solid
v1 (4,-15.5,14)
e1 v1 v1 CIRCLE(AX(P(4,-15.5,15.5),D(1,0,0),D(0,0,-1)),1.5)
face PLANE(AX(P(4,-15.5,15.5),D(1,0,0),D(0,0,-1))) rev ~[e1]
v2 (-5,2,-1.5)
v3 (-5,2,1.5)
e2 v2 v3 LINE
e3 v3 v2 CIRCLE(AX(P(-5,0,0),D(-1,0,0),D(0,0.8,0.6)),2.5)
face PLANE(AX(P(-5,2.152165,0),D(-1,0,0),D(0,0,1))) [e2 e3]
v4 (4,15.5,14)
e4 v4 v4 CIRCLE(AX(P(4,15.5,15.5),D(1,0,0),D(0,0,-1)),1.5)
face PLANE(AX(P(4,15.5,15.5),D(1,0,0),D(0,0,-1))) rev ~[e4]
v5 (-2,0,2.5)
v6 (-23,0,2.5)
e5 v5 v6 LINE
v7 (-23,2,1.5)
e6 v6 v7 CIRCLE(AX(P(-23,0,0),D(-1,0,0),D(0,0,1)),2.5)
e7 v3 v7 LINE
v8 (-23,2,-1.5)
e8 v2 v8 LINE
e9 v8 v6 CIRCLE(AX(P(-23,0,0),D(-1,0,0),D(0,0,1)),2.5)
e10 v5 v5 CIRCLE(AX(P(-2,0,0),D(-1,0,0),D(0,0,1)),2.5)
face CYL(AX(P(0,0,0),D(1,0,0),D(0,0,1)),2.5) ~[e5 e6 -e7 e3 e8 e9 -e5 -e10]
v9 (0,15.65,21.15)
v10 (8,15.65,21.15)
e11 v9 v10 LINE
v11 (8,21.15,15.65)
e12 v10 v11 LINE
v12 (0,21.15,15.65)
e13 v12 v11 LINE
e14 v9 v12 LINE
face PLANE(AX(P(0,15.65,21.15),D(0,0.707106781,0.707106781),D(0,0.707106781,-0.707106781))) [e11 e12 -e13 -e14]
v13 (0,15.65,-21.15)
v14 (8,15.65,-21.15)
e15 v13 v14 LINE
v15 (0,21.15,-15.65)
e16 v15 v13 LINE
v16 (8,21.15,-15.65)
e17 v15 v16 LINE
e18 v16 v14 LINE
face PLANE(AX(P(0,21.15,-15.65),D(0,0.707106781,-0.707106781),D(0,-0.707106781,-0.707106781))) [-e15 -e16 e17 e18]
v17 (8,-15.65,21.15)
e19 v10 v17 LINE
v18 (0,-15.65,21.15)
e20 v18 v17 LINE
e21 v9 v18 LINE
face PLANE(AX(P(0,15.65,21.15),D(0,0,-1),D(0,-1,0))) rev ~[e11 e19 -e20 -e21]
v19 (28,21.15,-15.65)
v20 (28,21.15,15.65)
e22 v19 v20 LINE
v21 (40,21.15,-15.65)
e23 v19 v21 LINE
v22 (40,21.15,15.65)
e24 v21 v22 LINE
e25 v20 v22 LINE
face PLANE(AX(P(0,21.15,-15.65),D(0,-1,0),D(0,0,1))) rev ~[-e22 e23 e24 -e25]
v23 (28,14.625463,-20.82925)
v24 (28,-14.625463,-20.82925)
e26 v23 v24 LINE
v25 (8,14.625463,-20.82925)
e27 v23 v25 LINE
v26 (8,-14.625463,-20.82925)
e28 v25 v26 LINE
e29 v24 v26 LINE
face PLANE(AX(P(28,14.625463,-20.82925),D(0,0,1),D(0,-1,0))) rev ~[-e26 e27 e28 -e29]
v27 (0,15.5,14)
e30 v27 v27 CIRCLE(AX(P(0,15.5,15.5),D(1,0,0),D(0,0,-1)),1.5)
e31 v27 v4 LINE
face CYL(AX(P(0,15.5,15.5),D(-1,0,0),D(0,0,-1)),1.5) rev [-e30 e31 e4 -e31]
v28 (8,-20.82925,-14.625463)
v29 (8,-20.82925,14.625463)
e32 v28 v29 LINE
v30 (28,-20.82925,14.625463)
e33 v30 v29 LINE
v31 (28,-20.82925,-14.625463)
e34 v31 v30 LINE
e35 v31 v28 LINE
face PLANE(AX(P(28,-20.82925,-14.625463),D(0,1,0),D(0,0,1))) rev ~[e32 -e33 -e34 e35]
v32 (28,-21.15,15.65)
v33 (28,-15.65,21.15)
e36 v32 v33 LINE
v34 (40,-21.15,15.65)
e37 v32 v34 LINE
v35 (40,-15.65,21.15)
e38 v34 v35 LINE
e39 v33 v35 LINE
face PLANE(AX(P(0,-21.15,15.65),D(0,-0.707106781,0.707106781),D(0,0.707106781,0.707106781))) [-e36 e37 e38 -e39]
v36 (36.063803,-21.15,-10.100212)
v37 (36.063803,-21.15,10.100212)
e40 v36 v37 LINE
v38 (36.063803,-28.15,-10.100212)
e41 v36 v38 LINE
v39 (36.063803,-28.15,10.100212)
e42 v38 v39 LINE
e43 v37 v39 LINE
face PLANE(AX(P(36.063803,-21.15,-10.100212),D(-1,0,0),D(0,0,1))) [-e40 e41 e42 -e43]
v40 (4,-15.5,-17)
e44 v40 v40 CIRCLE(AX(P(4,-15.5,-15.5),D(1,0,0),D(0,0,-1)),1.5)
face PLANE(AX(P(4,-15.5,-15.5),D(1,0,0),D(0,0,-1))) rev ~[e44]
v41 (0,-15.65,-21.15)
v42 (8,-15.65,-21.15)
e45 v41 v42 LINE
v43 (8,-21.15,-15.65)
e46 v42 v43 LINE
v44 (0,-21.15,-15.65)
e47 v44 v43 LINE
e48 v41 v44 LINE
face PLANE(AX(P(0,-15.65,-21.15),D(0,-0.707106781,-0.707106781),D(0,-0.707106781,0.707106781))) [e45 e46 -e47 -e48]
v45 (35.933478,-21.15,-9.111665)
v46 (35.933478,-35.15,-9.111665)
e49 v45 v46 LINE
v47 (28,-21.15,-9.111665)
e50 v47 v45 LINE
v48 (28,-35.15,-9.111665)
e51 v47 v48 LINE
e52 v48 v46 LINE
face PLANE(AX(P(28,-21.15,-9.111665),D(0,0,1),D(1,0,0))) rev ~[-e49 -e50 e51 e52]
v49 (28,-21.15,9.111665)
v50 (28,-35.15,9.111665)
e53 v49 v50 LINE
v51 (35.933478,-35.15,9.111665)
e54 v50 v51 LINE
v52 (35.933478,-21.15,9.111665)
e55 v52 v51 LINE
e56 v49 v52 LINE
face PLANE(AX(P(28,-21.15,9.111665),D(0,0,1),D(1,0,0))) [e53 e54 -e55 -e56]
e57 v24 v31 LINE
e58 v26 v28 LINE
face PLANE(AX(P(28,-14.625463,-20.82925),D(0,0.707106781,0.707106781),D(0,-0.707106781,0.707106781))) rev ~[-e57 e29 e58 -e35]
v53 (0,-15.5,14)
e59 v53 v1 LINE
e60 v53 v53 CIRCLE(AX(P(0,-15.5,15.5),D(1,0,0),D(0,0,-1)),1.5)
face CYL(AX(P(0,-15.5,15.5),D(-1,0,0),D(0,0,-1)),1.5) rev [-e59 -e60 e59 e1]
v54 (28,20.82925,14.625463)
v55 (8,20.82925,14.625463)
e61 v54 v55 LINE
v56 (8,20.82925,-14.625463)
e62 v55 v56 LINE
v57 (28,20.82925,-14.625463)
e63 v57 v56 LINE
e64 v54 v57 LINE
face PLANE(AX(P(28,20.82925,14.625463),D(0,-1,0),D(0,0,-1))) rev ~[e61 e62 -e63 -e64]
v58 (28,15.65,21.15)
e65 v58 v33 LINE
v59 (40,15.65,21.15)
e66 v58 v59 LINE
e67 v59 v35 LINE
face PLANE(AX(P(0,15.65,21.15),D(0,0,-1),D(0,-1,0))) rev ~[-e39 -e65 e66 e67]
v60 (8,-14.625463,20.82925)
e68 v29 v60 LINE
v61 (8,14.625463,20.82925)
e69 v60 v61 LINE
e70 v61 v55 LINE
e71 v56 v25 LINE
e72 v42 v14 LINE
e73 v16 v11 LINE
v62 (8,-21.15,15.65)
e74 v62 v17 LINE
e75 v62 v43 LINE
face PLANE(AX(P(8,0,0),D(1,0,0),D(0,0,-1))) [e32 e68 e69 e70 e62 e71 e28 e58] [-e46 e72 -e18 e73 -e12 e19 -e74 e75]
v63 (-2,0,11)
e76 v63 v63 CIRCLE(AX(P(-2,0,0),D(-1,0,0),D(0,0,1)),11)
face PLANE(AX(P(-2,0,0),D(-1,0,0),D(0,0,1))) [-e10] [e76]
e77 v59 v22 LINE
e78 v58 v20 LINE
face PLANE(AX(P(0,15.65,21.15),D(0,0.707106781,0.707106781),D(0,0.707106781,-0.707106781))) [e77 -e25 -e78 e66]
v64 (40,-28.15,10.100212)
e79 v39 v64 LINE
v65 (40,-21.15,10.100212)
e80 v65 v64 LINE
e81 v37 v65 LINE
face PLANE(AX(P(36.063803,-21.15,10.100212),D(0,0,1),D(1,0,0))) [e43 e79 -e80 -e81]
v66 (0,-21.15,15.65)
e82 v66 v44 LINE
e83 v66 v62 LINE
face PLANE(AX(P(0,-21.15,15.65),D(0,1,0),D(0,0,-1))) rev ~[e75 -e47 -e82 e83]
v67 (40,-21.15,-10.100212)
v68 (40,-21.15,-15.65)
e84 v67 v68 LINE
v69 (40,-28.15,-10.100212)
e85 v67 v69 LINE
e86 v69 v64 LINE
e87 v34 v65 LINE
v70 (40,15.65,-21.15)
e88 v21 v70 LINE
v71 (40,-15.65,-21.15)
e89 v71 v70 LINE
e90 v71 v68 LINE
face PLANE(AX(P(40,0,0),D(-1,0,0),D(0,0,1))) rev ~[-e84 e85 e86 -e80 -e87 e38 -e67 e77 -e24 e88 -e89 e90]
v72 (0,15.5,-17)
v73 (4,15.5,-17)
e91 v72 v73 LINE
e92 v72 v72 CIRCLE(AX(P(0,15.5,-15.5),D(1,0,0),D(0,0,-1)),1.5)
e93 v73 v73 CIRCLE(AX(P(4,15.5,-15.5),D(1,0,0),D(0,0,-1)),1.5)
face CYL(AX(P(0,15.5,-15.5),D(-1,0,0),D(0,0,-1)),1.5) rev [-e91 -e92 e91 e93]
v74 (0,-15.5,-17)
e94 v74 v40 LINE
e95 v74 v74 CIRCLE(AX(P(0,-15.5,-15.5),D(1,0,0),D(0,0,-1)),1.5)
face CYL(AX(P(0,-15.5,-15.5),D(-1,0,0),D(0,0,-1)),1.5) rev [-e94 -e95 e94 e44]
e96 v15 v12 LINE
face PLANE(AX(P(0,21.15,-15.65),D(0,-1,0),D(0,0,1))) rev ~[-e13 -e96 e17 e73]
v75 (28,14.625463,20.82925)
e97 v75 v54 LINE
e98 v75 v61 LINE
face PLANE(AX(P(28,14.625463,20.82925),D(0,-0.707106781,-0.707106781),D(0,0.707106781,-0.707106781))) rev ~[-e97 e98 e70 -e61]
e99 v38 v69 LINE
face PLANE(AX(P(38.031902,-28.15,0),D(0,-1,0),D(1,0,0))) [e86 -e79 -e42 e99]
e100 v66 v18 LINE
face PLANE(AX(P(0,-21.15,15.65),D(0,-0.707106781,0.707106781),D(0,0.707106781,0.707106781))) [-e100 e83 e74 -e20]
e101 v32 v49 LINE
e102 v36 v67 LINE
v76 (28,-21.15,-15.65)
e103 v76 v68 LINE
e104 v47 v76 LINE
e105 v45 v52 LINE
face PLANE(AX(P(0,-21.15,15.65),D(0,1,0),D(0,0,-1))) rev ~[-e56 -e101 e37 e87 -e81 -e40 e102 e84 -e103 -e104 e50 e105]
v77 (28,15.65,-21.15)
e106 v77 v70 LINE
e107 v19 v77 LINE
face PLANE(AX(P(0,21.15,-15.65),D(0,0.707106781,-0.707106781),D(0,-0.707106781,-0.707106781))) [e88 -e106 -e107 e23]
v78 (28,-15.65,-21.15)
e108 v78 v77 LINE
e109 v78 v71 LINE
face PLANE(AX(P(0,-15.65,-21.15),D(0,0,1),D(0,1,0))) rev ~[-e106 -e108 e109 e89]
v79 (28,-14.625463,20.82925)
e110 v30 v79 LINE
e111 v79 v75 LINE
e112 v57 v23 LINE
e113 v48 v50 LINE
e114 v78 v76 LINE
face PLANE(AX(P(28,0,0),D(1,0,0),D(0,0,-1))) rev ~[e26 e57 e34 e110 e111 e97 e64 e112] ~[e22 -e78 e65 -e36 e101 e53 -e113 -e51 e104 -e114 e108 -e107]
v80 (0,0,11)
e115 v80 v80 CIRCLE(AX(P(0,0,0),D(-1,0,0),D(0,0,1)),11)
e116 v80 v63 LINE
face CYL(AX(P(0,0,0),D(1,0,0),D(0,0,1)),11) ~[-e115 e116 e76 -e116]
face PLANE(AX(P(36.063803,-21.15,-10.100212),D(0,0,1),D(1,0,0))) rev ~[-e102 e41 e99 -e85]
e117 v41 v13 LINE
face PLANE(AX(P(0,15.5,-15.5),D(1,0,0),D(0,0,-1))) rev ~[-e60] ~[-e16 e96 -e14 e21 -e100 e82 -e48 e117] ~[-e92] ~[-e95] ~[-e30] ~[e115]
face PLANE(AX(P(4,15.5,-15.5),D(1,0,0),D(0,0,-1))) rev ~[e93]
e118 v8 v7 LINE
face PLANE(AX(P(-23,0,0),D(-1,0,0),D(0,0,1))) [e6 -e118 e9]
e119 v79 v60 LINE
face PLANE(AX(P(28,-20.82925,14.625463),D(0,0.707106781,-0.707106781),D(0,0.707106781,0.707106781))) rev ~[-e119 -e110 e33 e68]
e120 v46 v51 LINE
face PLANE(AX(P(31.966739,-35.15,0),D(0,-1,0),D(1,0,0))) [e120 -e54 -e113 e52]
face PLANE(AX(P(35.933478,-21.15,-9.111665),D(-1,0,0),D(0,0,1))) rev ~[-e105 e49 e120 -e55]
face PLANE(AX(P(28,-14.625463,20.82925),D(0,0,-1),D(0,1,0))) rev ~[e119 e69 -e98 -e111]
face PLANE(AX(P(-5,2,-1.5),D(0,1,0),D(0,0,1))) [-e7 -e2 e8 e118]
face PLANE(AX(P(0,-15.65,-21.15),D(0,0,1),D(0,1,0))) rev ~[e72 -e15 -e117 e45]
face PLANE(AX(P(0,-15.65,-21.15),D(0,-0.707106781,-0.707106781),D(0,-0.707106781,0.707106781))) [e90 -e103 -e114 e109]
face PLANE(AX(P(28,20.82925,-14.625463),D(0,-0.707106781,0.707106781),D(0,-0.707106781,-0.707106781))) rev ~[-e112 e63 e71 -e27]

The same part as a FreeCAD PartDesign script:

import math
import FreeCAD as App
import Part
import Sketcher
from FreeCAD import Vector

doc = App.newDocument("Part")
body = doc.addObject("PartDesign::Body", "Body")

sketch1 = body.newObject("Sketcher::SketchObject", "Sketch")
sketch1.AttachmentSupport = (doc.getObject("YZ_Plane"), [""])
sketch1.MapMode = "FlatFace"
sketch1.addGeometry(Part.LineSegment(Vector(21, -16, 0), Vector(21, 16, 0)), False)
sketch1.addGeometry(Part.LineSegment(Vector(21, 16, 0), Vector(16, 21, 0)), False)
sketch1.addGeometry(Part.LineSegment(Vector(16, 21, 0), Vector(-16, 21, 0)), False)
sketch1.addGeometry(Part.LineSegment(Vector(-16, 21, 0), Vector(-21, 16, 0)), False)
sketch1.addGeometry(Part.LineSegment(Vector(-21, 16, 0), Vector(-21, -16, 0)), False)
sketch1.addGeometry(Part.LineSegment(Vector(-21, -16, 0), Vector(-16, -21, 0)), False)
sketch1.addGeometry(Part.LineSegment(Vector(-16, -21, 0), Vector(16, -21, 0)), False)
sketch1.addGeometry(Part.LineSegment(Vector(16, -21, 0), Vector(21, -16, 0)), False)
sketch1.addConstraint(Sketcher.Constraint("Coincident", 0, 2, 1, 1))
sketch1.addConstraint(Sketcher.Constraint("Coincident", 1, 2, 2, 1))
sketch1.addConstraint(Sketcher.Constraint("Coincident", 2, 2, 3, 1))
sketch1.addConstraint(Sketcher.Constraint("Coincident", 3, 2, 4, 1))
sketch1.addConstraint(Sketcher.Constraint("Coincident", 4, 2, 5, 1))
sketch1.addConstraint(Sketcher.Constraint("Coincident", 5, 2, 6, 1))
sketch1.addConstraint(Sketcher.Constraint("Coincident", 6, 2, 7, 1))
sketch1.addConstraint(Sketcher.Constraint("Coincident", 7, 2, 0, 1))
sketch1.addConstraint(Sketcher.Constraint("Vertical", 0))
sketch1.addConstraint(Sketcher.Constraint("Horizontal", 2))
sketch1.addConstraint(Sketcher.Constraint("Vertical", 4))
sketch1.addConstraint(Sketcher.Constraint("Horizontal", 6))
sketch1.addConstraint(Sketcher.Constraint("Symmetric", 0, 2, 4, 2, -1, 1))
sketch1.addConstraint(Sketcher.Constraint("Symmetric", 1, 2, 5, 2, -1, 1))
sketch1.addConstraint(Sketcher.Constraint("Perpendicular", 1, 3))
sketch1.addConstraint(Sketcher.Constraint("Perpendicular", 5, 7))
sketch1.addConstraint(Sketcher.Constraint("Horizontal", 0, 2, 3, 2))
sketch1.addConstraint(Sketcher.Constraint("Horizontal", 4, 2, 7, 2))
sketch1.addConstraint(Sketcher.Constraint("Vertical", 2, 2, 5, 2))
sketch1.addConstraint(Sketcher.Constraint("Equal", 6, 0))
sketch1.addConstraint(Sketcher.Constraint("DistanceX", 2, 2, 2, 1, 31.3))
sketch1.addConstraint(Sketcher.Constraint("DistanceX", 1, 2, 0, 2, 5.5))
pad1 = body.newObject("PartDesign::Pad", "Pad")
pad1.Profile = sketch1
pad1.Length = 40

sketch2 = body.newObject("Sketcher::SketchObject", "Sketch001")
sketch2.AttachmentSupport = (doc.getObject("YZ_Plane"), [""])
sketch2.MapMode = "FlatFace"
sketch2.addGeometry(Part.Circle(Vector(15.5, 15.5, 0), Vector(0, 0, 1), 1.5), False)
sketch2.addGeometry(Part.Circle(Vector(-15.5, -15.5, 0), Vector(0, 0, 1), 1.5), False)
sketch2.addGeometry(Part.Circle(Vector(-15.5, 15.5, 0), Vector(0, 0, 1), 1.5), False)
sketch2.addGeometry(Part.Circle(Vector(15.5, -15.5, 0), Vector(0, 0, 1), 1.5), False)
sketch2.addConstraint(Sketcher.Constraint("Equal", 0, 1))
sketch2.addConstraint(Sketcher.Constraint("Equal", 1, 2))
sketch2.addConstraint(Sketcher.Constraint("Equal", 2, 3))
sketch2.addConstraint(Sketcher.Constraint("Symmetric", 0, 3, 1, 3, -1, 1))
sketch2.addConstraint(Sketcher.Constraint("Symmetric", 2, 3, 3, 3, -1, 1))
sketch2.addConstraint(Sketcher.Constraint("Symmetric", 0, 3, 2, 3, -2))
sketch2.addConstraint(Sketcher.Constraint("Diameter", 0, 3.0))
sketch2.addConstraint(Sketcher.Constraint("DistanceX", 1, 3, 0, 3, 31.0))
sketch2.addConstraint(Sketcher.Constraint("DistanceY", 1, 3, 0, 3, 31.0))
pocket1 = body.newObject("PartDesign::Pocket", "Pocket")
pocket1.Profile = sketch2
pocket1.Length = 4
pocket1.Reversed = True

sketch3 = body.newObject("Sketcher::SketchObject", "Sketch002")
sketch3.AttachmentSupport = (doc.getObject("YZ_Plane"), [""])
sketch3.MapMode = "FlatFace"
sketch3.addGeometry(Part.Circle(Vector(0, 0, 0), Vector(0, 0, 1), 11), False)
sketch3.addGeometry(Part.Circle(Vector(0, 0, 0), Vector(0, 0, 1), 2.5), False)
sketch3.addConstraint(Sketcher.Constraint("Coincident", 0, 3, -1, 1))
sketch3.addConstraint(Sketcher.Constraint("Coincident", 1, 3, -1, 1))
sketch3.addConstraint(Sketcher.Constraint("Diameter", 0, 22.0))
sketch3.addConstraint(Sketcher.Constraint("Diameter", 1, 5.0))
pad2 = body.newObject("PartDesign::Pad", "Pad001")
pad2.Profile = sketch3
pad2.Length = 2
pad2.Reversed = True

sketch4 = body.newObject("Sketcher::SketchObject", "Sketch003")
sketch4.AttachmentSupport = (doc.getObject("YZ_Plane"), [""])
sketch4.MapMode = "FlatFace"
sketch4.addGeometry(Part.Circle(Vector(0, 0, 0), Vector(0, 0, 1), 2.5), False)
sketch4.addConstraint(Sketcher.Constraint("Coincident", 0, 3, -1, 1))
sketch4.addConstraint(Sketcher.Constraint("Diameter", 0, 5.0))
pad3 = body.newObject("PartDesign::Pad", "Pad002")
pad3.Profile = sketch4
pad3.Length = 23
pad3.Reversed = True

sketch5 = body.newObject("Sketcher::SketchObject", "Sketch004")
sketch5.AttachmentSupport = (doc.getObject("YZ_Plane"), [""])
sketch5.MapMode = "FlatFace"
sketch5.AttachmentOffset = App.Placement(Vector(0, 0, -5), App.Rotation())
sketch5.addGeometry(Part.LineSegment(Vector(2, -1.5, 0), Vector(2, 1.5, 0)), False)
sketch5.addGeometry(Part.ArcOfCircle(Part.Circle(Vector(0, 0, 0), Vector(0, 0, 1), 2.5), math.radians(-37), math.radians(37)), False)
sketch5.addConstraint(Sketcher.Constraint("Coincident", 0, 1, 1, 1))
sketch5.addConstraint(Sketcher.Constraint("Coincident", 1, 2, 0, 2))
sketch5.addConstraint(Sketcher.Constraint("Vertical", 0))
sketch5.addConstraint(Sketcher.Constraint("Coincident", 1, 3, -1, 1))
sketch5.addConstraint(Sketcher.Constraint("Radius", 1, 2.5))
sketch5.addConstraint(Sketcher.Constraint("DistanceY", 0, 1, 0, 2, 3.0))
pocket2 = body.newObject("PartDesign::Pocket", "Pocket001")
pocket2.Profile = sketch5
pocket2.Length = 18

sketch6 = body.newObject("Sketcher::SketchObject", "Sketch005")
sketch6.AttachmentSupport = (doc.getObject("YZ_Plane"), [""])
sketch6.MapMode = "FlatFace"
sketch6.AttachmentOffset = App.Placement(Vector(0, 0, 28), App.Rotation())
sketch6.addGeometry(Part.LineSegment(Vector(28, 28, 0), Vector(-28, 28, 0)), False)
sketch6.addGeometry(Part.LineSegment(Vector(-28, 28, 0), Vector(-28, -28, 0)), False)
sketch6.addGeometry(Part.LineSegment(Vector(-28, -28, 0), Vector(28, -28, 0)), False)
sketch6.addGeometry(Part.LineSegment(Vector(28, -28, 0), Vector(28, 28, 0)), False)
sketch6.addGeometry(Part.LineSegment(Vector(-15, 21, 0), Vector(15, 21, 0)), False)
sketch6.addGeometry(Part.LineSegment(Vector(15, 21, 0), Vector(21, 15, 0)), False)
sketch6.addGeometry(Part.LineSegment(Vector(21, 15, 0), Vector(21, -15, 0)), False)
sketch6.addGeometry(Part.LineSegment(Vector(21, -15, 0), Vector(15, -21, 0)), False)
sketch6.addGeometry(Part.LineSegment(Vector(15, -21, 0), Vector(-15, -21, 0)), False)
sketch6.addGeometry(Part.LineSegment(Vector(-15, -21, 0), Vector(-21, -15, 0)), False)
sketch6.addGeometry(Part.LineSegment(Vector(-21, -15, 0), Vector(-21, 15, 0)), False)
sketch6.addGeometry(Part.LineSegment(Vector(-21, 15, 0), Vector(-15, 21, 0)), False)
sketch6.addConstraint(Sketcher.Constraint("Coincident", 0, 2, 1, 1))
sketch6.addConstraint(Sketcher.Constraint("Coincident", 1, 2, 2, 1))
sketch6.addConstraint(Sketcher.Constraint("Coincident", 2, 2, 3, 1))
sketch6.addConstraint(Sketcher.Constraint("Coincident", 3, 2, 0, 1))
sketch6.addConstraint(Sketcher.Constraint("Coincident", 4, 2, 5, 1))
sketch6.addConstraint(Sketcher.Constraint("Coincident", 5, 2, 6, 1))
sketch6.addConstraint(Sketcher.Constraint("Coincident", 6, 2, 7, 1))
sketch6.addConstraint(Sketcher.Constraint("Coincident", 7, 2, 8, 1))
sketch6.addConstraint(Sketcher.Constraint("Coincident", 8, 2, 9, 1))
sketch6.addConstraint(Sketcher.Constraint("Coincident", 9, 2, 10, 1))
sketch6.addConstraint(Sketcher.Constraint("Coincident", 10, 2, 11, 1))
sketch6.addConstraint(Sketcher.Constraint("Coincident", 11, 2, 4, 1))
sketch6.addConstraint(Sketcher.Constraint("Horizontal", 0))
sketch6.addConstraint(Sketcher.Constraint("Vertical", 1))
sketch6.addConstraint(Sketcher.Constraint("Horizontal", 2))
sketch6.addConstraint(Sketcher.Constraint("Vertical", 3))
sketch6.addConstraint(Sketcher.Constraint("Horizontal", 4))
sketch6.addConstraint(Sketcher.Constraint("Vertical", 6))
sketch6.addConstraint(Sketcher.Constraint("Horizontal", 8))
sketch6.addConstraint(Sketcher.Constraint("Vertical", 10))
sketch6.addConstraint(Sketcher.Constraint("Symmetric", 0, 2, 2, 2, -1, 1))
sketch6.addConstraint(Sketcher.Constraint("Symmetric", 4, 2, 8, 2, -1, 1))
sketch6.addConstraint(Sketcher.Constraint("Symmetric", 5, 2, 9, 2, -1, 1))
sketch6.addConstraint(Sketcher.Constraint("Perpendicular", 5, 7))
sketch6.addConstraint(Sketcher.Constraint("Perpendicular", 9, 11))
sketch6.addConstraint(Sketcher.Constraint("Horizontal", 6, 2, 9, 2))
sketch6.addConstraint(Sketcher.Constraint("Horizontal", 5, 2, 10, 2))
sketch6.addConstraint(Sketcher.Constraint("Vertical", 4, 2, 7, 2))
sketch6.addConstraint(Sketcher.Constraint("Equal", 2, 1))
sketch6.addConstraint(Sketcher.Constraint("Equal", 8, 6))
sketch6.addConstraint(Sketcher.Constraint("DistanceX", 0, 2, 0, 1, 55.059472))
sketch6.addConstraint(Sketcher.Constraint("DistanceX", 0, 2, 4, 2, 42.155199))
sketch6.addConstraint(Sketcher.Constraint("DistanceY", 7, 2, 4, 2, 41.658501))
pocket3 = body.newObject("PartDesign::Pocket", "Pocket002")
pocket3.Profile = sketch6
pocket3.Length = 20

sketch7 = body.newObject("Sketcher::SketchObject", "Sketch006")
sketch7.AttachmentSupport = (doc.getObject("XZ_Plane"), [""])
sketch7.MapMode = "FlatFace"
sketch7.AttachmentOffset = App.Placement(Vector(0, 0, 21.15), App.Rotation())
sketch7.addGeometry(Part.LineSegment(Vector(28, 9, 0), Vector(28, -9, 0)), False)
sketch7.addGeometry(Part.LineSegment(Vector(28, -9, 0), Vector(36, -9, 0)), False)
sketch7.addGeometry(Part.LineSegment(Vector(36, -9, 0), Vector(36, 9, 0)), False)
sketch7.addGeometry(Part.LineSegment(Vector(36, 9, 0), Vector(28, 9, 0)), False)
sketch7.addConstraint(Sketcher.Constraint("Coincident", 0, 2, 1, 1))
sketch7.addConstraint(Sketcher.Constraint("Coincident", 1, 2, 2, 1))
sketch7.addConstraint(Sketcher.Constraint("Coincident", 2, 2, 3, 1))
sketch7.addConstraint(Sketcher.Constraint("Coincident", 3, 2, 0, 1))
sketch7.addConstraint(Sketcher.Constraint("Vertical", 0))
sketch7.addConstraint(Sketcher.Constraint("Horizontal", 1))
sketch7.addConstraint(Sketcher.Constraint("Vertical", 2))
sketch7.addConstraint(Sketcher.Constraint("Horizontal", 3))
sketch7.addConstraint(Sketcher.Constraint("DistanceX", -1, 1, 0, 2, 28.0))
sketch7.addConstraint(Sketcher.Constraint("DistanceY", 0, 2, 0, 1, 18.223329))
sketch7.addConstraint(Sketcher.Constraint("DistanceX", 1, 1, 1, 2, 7.933478))
sketch7.addConstraint(Sketcher.Constraint("DistanceY", 0, 2, -1, 1, 9.111665))
pad4 = body.newObject("PartDesign::Pad", "Pad003")
pad4.Profile = sketch7
pad4.Length = 14

sketch8 = body.newObject("Sketcher::SketchObject", "Sketch007")
sketch8.AttachmentSupport = (doc.getObject("XZ_Plane"), [""])
sketch8.MapMode = "FlatFace"
sketch8.AttachmentOffset = App.Placement(Vector(0, 0, 21.15), App.Rotation())
sketch8.addGeometry(Part.LineSegment(Vector(36.1, 10.1, 0), Vector(36.1, -10.1, 0)), False)
sketch8.addGeometry(Part.LineSegment(Vector(36.1, -10.1, 0), Vector(40, -10.1, 0)), False)
sketch8.addGeometry(Part.LineSegment(Vector(40, -10.1, 0), Vector(40, 10.1, 0)), False)
sketch8.addGeometry(Part.LineSegment(Vector(40, 10.1, 0), Vector(36.1, 10.1, 0)), False)
sketch8.addConstraint(Sketcher.Constraint("Coincident", 0, 2, 1, 1))
sketch8.addConstraint(Sketcher.Constraint("Coincident", 1, 2, 2, 1))
sketch8.addConstraint(Sketcher.Constraint("Coincident", 2, 2, 3, 1))
sketch8.addConstraint(Sketcher.Constraint("Coincident", 3, 2, 0, 1))
sketch8.addConstraint(Sketcher.Constraint("Vertical", 0))
sketch8.addConstraint(Sketcher.Constraint("Horizontal", 1))
sketch8.addConstraint(Sketcher.Constraint("Vertical", 2))
sketch8.addConstraint(Sketcher.Constraint("Horizontal", 3))
sketch8.addConstraint(Sketcher.Constraint("DistanceX", -1, 1, 1, 2, 40.0))
sketch8.addConstraint(Sketcher.Constraint("DistanceX", 1, 1, 1, 2, 3.936197))
sketch8.addConstraint(Sketcher.Constraint("DistanceY", 0, 2, 0, 1, 20.200423))
sketch8.addConstraint(Sketcher.Constraint("DistanceY", 0, 2, -1, 1, 10.100212))
pad5 = body.newObject("PartDesign::Pad", "Pad004")
pad5.Profile = sketch8
pad5.Length = 7

doc.recompute()
